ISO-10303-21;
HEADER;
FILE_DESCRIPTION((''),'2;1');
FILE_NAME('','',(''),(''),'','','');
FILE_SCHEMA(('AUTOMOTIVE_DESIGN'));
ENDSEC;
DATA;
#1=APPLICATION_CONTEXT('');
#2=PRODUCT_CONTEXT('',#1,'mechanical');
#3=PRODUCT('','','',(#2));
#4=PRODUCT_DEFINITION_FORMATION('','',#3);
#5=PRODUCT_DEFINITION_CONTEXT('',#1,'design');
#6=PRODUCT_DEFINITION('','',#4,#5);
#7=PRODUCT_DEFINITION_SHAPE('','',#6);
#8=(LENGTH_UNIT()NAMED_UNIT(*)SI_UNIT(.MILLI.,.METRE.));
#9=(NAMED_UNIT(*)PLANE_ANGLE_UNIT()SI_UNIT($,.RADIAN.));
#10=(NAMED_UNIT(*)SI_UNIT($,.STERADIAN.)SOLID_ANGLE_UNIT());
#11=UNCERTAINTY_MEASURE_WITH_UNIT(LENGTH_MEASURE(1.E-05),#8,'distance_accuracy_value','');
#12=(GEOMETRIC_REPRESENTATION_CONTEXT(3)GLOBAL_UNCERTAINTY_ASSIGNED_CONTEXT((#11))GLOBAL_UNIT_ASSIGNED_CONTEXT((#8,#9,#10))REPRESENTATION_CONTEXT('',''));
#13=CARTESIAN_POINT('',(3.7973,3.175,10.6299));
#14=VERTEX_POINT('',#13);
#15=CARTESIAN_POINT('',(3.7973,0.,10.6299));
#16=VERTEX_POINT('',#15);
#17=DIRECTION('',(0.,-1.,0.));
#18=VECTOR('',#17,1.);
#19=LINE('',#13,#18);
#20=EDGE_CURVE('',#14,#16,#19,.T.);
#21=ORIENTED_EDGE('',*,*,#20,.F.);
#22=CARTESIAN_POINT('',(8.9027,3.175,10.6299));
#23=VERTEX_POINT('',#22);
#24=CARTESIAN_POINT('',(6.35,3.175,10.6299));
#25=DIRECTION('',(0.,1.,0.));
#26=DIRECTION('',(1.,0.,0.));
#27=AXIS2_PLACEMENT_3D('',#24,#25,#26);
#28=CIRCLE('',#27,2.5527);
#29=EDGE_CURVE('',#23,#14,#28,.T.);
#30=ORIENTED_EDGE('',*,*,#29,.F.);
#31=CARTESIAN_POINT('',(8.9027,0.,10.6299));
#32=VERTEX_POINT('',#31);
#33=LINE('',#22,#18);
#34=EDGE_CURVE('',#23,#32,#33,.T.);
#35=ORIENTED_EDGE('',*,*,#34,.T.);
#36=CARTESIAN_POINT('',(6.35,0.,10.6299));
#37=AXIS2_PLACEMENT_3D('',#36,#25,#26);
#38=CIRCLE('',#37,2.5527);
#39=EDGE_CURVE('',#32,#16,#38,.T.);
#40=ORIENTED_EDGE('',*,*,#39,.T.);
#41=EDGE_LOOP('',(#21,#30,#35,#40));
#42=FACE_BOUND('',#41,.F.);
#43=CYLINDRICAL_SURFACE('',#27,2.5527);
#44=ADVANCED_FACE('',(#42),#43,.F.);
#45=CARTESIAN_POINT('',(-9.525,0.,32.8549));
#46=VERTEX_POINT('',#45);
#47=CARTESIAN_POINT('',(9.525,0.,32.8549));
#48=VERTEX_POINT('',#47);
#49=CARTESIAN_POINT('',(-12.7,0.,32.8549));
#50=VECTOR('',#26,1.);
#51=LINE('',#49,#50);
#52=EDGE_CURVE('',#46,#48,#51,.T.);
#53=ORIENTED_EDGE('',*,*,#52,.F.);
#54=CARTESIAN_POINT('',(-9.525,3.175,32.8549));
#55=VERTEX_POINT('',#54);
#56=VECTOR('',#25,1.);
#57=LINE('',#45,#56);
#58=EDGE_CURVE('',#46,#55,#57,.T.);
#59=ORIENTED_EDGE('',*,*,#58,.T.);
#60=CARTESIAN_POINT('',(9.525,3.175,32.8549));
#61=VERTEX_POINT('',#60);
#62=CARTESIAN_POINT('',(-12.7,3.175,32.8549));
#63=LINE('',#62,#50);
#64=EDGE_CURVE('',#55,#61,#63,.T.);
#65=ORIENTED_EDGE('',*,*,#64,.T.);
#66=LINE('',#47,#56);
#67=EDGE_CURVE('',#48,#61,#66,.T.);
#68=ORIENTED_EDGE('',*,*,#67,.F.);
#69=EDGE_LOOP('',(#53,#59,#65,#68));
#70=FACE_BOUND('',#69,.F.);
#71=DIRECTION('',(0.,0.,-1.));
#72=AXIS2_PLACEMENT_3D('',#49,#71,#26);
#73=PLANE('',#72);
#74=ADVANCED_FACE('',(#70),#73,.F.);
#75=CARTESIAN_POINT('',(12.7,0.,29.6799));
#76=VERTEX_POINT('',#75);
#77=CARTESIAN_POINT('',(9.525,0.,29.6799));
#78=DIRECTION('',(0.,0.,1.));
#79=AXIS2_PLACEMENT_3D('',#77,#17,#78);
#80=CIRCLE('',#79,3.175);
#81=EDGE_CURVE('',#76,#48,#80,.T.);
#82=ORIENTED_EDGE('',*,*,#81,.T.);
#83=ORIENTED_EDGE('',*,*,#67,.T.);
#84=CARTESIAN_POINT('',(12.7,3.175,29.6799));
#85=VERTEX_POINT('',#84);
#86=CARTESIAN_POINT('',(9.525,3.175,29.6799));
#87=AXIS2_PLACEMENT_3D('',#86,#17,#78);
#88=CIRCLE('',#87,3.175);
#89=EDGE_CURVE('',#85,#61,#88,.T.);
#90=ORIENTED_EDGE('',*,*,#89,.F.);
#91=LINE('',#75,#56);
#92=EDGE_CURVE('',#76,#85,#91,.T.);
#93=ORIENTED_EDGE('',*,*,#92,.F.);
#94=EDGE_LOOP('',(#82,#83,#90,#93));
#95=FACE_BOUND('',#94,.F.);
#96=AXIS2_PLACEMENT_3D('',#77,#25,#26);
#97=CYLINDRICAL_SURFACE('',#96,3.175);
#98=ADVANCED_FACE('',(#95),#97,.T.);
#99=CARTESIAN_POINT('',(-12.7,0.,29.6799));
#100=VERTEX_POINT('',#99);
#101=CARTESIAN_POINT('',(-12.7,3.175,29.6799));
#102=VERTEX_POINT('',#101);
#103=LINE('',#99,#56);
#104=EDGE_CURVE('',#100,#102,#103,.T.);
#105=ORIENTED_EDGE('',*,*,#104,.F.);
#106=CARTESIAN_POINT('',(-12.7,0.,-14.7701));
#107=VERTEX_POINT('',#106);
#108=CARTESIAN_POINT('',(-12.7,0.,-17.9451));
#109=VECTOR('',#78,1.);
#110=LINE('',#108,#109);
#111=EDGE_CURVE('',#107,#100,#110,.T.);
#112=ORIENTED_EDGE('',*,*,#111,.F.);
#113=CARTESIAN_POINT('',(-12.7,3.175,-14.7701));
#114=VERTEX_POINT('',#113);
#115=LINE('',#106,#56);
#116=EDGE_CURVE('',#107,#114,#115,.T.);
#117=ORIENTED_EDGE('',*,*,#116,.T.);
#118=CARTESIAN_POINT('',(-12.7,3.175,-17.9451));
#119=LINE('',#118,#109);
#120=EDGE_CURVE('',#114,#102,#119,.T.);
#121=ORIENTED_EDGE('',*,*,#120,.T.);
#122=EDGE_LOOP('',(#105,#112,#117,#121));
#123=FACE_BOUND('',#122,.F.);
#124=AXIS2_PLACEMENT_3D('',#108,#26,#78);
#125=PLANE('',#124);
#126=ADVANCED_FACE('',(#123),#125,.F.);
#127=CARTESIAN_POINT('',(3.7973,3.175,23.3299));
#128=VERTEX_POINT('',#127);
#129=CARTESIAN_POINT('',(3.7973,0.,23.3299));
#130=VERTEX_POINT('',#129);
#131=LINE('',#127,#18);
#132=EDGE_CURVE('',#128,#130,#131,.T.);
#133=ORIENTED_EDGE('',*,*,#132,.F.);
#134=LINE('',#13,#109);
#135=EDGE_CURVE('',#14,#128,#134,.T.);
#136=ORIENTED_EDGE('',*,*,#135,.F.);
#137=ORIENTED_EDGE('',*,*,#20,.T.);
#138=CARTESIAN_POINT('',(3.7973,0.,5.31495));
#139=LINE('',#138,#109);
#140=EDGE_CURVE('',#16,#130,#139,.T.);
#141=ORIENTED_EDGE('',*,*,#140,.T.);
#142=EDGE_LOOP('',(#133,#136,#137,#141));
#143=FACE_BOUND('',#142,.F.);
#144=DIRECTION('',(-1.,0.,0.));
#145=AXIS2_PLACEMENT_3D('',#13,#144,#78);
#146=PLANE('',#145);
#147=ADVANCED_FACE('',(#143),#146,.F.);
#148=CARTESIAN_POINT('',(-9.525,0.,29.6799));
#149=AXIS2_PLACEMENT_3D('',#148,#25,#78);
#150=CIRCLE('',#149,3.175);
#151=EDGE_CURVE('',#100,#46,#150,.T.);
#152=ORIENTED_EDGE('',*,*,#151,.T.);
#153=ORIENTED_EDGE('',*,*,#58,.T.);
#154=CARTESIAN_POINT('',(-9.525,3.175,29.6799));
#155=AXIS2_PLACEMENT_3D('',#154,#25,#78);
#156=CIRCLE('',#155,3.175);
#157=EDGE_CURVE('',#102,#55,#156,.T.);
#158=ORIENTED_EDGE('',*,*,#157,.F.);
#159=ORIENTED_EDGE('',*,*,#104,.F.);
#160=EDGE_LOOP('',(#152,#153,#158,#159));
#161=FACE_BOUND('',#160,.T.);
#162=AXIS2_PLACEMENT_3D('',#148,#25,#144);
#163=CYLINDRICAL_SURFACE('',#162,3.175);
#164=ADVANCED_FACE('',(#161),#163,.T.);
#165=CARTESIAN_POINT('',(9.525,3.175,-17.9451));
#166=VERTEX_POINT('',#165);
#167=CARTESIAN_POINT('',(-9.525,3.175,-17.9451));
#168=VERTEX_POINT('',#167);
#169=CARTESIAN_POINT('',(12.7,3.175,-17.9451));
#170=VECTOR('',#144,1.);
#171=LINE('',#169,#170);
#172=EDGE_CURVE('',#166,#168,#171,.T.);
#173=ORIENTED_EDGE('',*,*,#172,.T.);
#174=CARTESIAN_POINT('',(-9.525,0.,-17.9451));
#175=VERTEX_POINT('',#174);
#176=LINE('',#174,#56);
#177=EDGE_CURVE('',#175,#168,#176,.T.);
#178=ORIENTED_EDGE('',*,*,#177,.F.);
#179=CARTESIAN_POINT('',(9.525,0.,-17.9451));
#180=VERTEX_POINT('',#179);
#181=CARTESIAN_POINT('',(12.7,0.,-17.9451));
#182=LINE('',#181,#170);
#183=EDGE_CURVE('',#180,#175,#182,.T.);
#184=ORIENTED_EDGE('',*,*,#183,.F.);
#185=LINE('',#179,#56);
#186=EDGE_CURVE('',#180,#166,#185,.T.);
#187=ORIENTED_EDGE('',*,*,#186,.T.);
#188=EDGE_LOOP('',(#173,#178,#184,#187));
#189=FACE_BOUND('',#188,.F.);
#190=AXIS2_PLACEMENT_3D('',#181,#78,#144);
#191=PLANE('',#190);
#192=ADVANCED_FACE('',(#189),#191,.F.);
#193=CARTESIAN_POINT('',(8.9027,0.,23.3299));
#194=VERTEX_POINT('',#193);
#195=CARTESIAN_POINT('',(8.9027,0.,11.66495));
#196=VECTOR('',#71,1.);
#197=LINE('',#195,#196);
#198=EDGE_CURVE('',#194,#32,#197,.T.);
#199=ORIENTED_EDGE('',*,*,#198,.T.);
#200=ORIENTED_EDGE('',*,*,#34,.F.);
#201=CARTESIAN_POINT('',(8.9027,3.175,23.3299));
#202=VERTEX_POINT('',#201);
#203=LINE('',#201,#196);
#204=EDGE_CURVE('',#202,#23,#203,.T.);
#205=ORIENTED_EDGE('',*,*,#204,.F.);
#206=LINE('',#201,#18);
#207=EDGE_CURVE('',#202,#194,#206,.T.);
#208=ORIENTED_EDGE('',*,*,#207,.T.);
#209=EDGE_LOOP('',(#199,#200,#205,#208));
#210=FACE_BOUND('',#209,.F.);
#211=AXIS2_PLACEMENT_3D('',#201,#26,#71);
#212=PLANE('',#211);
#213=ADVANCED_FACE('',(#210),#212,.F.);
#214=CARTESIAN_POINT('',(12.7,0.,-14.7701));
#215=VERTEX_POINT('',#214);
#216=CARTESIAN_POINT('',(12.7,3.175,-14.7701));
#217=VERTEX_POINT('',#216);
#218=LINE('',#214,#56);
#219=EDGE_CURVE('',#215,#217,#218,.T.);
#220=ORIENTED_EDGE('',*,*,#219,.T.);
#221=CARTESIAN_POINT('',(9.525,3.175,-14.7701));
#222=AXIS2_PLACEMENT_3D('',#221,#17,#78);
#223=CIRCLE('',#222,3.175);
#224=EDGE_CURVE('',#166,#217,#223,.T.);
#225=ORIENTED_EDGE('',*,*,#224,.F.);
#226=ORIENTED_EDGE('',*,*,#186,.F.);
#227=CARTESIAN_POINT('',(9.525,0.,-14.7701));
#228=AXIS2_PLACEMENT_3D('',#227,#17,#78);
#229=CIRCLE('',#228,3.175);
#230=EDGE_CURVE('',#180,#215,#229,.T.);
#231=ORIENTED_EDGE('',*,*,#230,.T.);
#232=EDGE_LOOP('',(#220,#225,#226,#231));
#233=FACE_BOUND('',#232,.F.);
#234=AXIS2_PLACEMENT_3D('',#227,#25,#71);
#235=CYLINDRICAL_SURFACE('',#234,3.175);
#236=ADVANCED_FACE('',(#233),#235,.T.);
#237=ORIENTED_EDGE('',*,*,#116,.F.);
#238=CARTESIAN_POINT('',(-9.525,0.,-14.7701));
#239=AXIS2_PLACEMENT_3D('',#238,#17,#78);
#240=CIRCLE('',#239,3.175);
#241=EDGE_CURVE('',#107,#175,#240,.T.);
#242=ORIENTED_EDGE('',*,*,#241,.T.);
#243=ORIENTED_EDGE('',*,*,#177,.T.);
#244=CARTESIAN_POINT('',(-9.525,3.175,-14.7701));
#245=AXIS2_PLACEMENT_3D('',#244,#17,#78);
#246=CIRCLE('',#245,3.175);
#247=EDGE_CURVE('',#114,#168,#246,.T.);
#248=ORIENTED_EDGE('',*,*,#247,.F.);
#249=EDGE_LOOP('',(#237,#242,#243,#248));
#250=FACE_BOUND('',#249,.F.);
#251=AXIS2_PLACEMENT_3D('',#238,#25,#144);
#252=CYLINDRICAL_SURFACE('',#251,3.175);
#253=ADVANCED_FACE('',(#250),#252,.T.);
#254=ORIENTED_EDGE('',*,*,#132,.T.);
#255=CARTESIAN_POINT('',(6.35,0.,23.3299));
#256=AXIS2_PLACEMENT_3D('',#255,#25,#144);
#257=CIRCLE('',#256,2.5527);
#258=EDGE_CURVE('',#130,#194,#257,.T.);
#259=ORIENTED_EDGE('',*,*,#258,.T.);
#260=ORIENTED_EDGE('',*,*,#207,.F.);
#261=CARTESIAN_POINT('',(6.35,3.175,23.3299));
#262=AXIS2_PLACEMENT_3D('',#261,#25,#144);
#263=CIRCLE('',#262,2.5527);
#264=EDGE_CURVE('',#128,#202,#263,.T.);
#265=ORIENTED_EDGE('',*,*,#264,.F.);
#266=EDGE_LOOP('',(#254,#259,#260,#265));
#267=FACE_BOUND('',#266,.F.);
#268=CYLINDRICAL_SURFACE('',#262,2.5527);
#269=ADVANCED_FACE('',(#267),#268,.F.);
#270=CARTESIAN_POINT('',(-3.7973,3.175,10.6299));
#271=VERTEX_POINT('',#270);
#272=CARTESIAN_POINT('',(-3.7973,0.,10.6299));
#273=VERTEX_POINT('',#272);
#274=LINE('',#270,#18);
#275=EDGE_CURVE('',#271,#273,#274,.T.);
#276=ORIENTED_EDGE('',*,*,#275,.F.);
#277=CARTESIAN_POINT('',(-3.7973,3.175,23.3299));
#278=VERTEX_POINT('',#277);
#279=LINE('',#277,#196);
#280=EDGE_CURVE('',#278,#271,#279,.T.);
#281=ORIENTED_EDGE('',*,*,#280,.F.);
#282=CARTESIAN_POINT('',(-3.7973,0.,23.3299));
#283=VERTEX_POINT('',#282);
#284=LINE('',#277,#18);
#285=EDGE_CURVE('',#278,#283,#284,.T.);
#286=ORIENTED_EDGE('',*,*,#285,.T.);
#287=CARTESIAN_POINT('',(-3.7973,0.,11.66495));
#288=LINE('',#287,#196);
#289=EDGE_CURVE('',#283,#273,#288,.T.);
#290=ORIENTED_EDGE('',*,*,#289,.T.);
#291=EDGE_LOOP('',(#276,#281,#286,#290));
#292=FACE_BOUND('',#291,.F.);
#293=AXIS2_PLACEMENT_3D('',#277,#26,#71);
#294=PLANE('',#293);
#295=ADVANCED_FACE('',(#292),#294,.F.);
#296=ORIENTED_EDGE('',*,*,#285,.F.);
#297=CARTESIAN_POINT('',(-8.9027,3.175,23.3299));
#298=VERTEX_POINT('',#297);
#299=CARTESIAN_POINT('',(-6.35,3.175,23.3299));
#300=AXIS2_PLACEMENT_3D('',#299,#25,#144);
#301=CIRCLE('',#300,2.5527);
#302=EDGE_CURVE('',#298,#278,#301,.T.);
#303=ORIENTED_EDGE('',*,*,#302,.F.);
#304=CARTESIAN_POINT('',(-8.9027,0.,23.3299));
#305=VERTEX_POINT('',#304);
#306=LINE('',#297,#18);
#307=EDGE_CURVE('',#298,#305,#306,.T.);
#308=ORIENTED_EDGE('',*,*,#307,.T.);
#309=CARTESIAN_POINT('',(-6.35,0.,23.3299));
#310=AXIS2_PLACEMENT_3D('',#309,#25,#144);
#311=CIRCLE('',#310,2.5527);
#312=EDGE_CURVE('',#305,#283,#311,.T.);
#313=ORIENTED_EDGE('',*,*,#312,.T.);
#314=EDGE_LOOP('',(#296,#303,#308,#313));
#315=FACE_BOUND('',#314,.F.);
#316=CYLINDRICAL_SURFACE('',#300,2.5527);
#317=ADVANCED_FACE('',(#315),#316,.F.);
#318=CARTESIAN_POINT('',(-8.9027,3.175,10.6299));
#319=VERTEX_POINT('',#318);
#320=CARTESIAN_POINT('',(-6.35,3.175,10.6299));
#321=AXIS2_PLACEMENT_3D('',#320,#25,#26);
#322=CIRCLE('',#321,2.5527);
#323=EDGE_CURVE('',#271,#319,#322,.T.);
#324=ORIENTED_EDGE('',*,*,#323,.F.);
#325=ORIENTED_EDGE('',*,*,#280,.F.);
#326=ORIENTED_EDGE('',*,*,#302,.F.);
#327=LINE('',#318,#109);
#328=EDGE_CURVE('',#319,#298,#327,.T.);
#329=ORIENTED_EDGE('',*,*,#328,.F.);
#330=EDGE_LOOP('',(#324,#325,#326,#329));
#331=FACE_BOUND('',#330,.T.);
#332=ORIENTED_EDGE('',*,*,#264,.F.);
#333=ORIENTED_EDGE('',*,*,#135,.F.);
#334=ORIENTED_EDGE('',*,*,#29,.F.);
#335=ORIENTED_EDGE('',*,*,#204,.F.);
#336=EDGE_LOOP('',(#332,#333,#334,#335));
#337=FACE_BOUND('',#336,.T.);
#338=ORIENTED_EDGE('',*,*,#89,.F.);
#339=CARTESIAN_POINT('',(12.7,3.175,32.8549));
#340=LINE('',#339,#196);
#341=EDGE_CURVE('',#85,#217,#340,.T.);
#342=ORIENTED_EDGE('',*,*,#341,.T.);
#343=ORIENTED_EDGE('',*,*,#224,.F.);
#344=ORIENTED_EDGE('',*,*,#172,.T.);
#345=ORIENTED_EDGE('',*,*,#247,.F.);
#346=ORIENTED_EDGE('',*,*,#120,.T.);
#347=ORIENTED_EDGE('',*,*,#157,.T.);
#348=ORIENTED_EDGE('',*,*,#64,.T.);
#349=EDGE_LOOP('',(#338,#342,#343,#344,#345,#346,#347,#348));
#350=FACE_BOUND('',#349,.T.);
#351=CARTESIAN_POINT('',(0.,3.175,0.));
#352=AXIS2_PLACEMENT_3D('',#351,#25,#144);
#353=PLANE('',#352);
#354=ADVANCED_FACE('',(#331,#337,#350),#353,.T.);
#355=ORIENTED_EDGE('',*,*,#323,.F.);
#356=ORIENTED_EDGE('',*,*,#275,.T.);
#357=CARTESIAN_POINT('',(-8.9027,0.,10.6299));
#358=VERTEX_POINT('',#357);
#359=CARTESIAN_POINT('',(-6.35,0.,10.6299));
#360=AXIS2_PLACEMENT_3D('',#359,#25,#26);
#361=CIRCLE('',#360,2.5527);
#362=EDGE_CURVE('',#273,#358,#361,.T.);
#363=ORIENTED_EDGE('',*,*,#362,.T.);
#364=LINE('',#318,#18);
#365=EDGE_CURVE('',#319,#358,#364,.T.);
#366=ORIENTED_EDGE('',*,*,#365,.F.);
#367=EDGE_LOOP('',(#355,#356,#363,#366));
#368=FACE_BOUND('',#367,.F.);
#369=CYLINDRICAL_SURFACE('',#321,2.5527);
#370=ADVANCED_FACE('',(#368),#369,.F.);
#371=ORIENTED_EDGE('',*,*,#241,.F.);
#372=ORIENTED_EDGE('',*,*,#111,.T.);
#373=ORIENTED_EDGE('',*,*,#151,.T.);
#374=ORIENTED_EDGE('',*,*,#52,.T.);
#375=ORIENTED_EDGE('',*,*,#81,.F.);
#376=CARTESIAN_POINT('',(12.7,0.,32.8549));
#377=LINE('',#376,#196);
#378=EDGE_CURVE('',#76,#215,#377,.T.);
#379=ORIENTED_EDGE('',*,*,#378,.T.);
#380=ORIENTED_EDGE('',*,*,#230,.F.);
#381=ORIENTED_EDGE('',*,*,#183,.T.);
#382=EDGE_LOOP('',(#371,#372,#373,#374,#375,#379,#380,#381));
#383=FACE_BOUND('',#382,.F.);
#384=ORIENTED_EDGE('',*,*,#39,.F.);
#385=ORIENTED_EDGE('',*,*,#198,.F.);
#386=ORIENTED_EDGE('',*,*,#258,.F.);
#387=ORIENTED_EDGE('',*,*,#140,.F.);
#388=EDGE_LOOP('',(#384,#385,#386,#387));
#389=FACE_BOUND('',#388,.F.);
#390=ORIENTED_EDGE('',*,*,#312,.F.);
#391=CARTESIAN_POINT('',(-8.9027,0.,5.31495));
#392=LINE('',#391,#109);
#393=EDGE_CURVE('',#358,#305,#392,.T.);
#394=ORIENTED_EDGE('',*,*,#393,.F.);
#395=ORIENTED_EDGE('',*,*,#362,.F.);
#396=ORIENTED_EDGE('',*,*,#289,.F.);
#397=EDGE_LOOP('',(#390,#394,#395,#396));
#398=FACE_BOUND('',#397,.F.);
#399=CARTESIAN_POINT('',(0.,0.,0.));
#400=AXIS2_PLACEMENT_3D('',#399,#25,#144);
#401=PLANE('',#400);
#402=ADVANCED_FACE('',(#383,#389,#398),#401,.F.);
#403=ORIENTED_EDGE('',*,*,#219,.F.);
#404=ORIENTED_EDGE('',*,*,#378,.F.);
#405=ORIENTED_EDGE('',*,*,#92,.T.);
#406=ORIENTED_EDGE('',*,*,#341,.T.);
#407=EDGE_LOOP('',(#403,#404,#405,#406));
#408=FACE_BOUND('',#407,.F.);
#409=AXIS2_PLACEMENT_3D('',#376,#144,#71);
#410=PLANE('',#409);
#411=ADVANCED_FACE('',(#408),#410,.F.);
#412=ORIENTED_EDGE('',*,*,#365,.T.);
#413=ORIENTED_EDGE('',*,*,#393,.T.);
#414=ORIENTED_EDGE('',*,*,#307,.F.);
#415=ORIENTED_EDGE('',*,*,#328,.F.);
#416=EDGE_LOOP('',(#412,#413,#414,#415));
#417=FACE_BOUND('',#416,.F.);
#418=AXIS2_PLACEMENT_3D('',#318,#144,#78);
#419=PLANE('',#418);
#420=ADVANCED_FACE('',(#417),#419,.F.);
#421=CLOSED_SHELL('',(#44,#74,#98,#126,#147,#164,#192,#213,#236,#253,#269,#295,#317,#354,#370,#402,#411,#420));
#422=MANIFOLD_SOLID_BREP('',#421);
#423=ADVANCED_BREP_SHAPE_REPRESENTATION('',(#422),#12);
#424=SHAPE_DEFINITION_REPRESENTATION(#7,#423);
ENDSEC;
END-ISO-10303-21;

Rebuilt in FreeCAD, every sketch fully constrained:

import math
import FreeCAD as App
import Part
import Sketcher

V = App.Vector
Q = App.Units.Quantity


def edges_at(feature, points):
    """Names of the edges that pass closest to the given points."""
    edges = feature.Shape.Edges
    near = lambda p: min(range(len(edges)), key=lambda i: edges[i].distToShape(Part.Vertex(*p))[0])
    return sorted({f"Edge{near(p) + 1}" for p in points})


def add_polygon(sketch, points):
    """Adds a closed chain of lines whose ends are joined by coincident constraints."""
    first, n = sketch.GeometryCount, len(points)
    for a, b in zip(points, points[1:] + points[:1]):
        sketch.addGeometry(Part.LineSegment(App.Vector(*a, 0), App.Vector(*b, 0)), False)
    for i in range(n):
        sketch.addConstraint(Sketcher.Constraint("Coincident", first + i, 2, first + (i + 1) % n, 1))

doc = App.newDocument("Part")
body = doc.addObject("PartDesign::Body", "Body")

# Sketch on XZ plane
sketch1 = doc.addObject("Sketcher::SketchObject", "Sketch")
body.addObject(sketch1)
sketch1.AttachmentSupport = (doc.XZ_Plane, [""])
sketch1.MapMode = "FlatFace"
add_polygon(sketch1, [(-13, -18), (-13, 33), (13, 33), (13, -18)])  # lines 0-3
sketch1.addConstraint([
    Sketcher.Constraint("Vertical", 0),
    Sketcher.Constraint("Horizontal", 1),
    Sketcher.Constraint("Vertical", 2),
    Sketcher.Constraint("Horizontal", 3),
    Sketcher.Constraint("DistanceX", 1, 1, 1, 2, Q("1 in")),
    Sketcher.Constraint("DistanceY", 0, 1, 0, 2, Q("2 in")),
    Sketcher.Constraint("DistanceX", 0, 2, -1, 1, Q("0.5 in")),
    Sketcher.Constraint("DistanceY", -1, 1, 0, 2, Q("1.2935 in")),
])
pad1 = doc.addObject("PartDesign::Pad", "Pad")
body.addObject(pad1)
pad1.Profile = sketch1
pad1.Length = Q("0.125 in")
pad1.Reversed = True
doc.recompute()

fillet = doc.addObject("PartDesign::Fillet", "Fillet")
body.addObject(fillet)
fillet.Base = (pad1, edges_at(pad1, [
    (-12.7, 1.587, -17.945),
    (12.7, 1.587, -17.945),
    (12.7, 1.587, 32.855),
    (-12.7, 1.587, 32.855),
]))
fillet.Radius = Q("0.125 in")

# Sketch on XZ plane
sketch2 = doc.addObject("Sketcher::SketchObject", "Sketch001")
body.addObject(sketch2)
sketch2.AttachmentSupport = (doc.XZ_Plane, [""])
sketch2.MapMode = "FlatFace"
sketch2.AttachmentOffset = App.Placement(V(0, 0, -0.125 * 25.4), App.Rotation())
sketch2.addGeometry([
    Part.ArcOfCircle(Part.Circle(V(-6.3, 10.6, 0), V(0, 0, 1), 2.6), math.radians(180), math.radians(360)),  # 0
    Part.LineSegment(V(-8.9, 10.6, 0), V(-8.9, 23.3, 0)),  # 1
    Part.ArcOfCircle(Part.Circle(V(-6.3, 23.3, 0), V(0, 0, 1), 2.6), math.radians(0), math.radians(180)),  # 2
    Part.LineSegment(V(-3.8, 23.3, 0), V(-3.8, 10.6, 0)),  # 3
    Part.ArcOfCircle(Part.Circle(V(6.3, 10.6, 0), V(0, 0, 1), 2.6), math.radians(180), math.radians(360)),  # 4
    Part.LineSegment(V(3.8, 10.6, 0), V(3.8, 23.3, 0)),  # 5
    Part.ArcOfCircle(Part.Circle(V(6.3, 23.3, 0), V(0, 0, 1), 2.6), math.radians(0), math.radians(180)),  # 6
    Part.LineSegment(V(8.9, 23.3, 0), V(8.9, 10.6, 0)),  # 7
], False)
sketch2.addConstraint([
    Sketcher.Constraint("Tangent", 0, 1, 1, 1),
    Sketcher.Constraint("Tangent", 1, 2, 2, 2),
    Sketcher.Constraint("Tangent", 2, 1, 3, 1),
    Sketcher.Constraint("Tangent", 3, 2, 0, 2),
    Sketcher.Constraint("Tangent", 4, 1, 5, 1),
    Sketcher.Constraint("Tangent", 5, 2, 6, 2),
    Sketcher.Constraint("Tangent", 6, 1, 7, 1),
    Sketcher.Constraint("Tangent", 7, 2, 4, 2),
    Sketcher.Constraint("Vertical", 1),
    Sketcher.Constraint("Vertical", 3),
    Sketcher.Constraint("Vertical", 5),
    Sketcher.Constraint("Vertical", 7),
    Sketcher.Constraint("Equal", 2, 4),
    Sketcher.Constraint("Symmetric", 0, 3, 4, 3, -2),
    Sketcher.Constraint("Horizontal", 2, 3, 6, 3),
    Sketcher.Constraint("DistanceY", 1, 1, 1, 2, Q("0.5 in")),
    Sketcher.Constraint("Radius", 0, Q("0.1005 in")),
    Sketcher.Constraint("DistanceX", 0, 3, 4, 3, Q("0.5 in")),
    Sketcher.Constraint("DistanceY", -1, 1, 0, 3, Q("0.4185 in")),
])
pocket1 = doc.addObject("PartDesign::Pocket", "Pocket")
body.addObject(pocket1)
pocket1.Profile = sketch2
pocket1.Length = Q("1 in")
pocket1.Reversed = True

doc.recompute()
